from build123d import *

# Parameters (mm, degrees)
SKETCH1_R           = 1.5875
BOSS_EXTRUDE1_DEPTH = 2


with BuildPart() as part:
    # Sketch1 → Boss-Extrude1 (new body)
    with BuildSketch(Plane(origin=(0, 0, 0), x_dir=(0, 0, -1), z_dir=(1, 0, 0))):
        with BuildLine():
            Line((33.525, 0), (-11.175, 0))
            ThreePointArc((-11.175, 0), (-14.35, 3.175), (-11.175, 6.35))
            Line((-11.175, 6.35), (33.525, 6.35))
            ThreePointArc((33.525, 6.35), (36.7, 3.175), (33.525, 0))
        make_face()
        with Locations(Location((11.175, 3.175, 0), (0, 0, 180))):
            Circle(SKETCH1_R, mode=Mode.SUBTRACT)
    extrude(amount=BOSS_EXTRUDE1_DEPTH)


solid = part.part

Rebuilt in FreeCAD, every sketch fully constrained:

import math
import FreeCAD as App
import Part
import Sketcher

V = App.Vector
Q = App.Units.Quantity

doc = App.newDocument("Part")
body = doc.addObject("PartDesign::Body", "Body")

sketch1 = body.newObject("Sketcher::SketchObject", "Sketch")
sketch1.AttachmentSupport = (doc.getObject("YZ_Plane"), [""])
sketch1.MapMode = "FlatFace"
sketch1.addGeometry([
    Part.LineSegment(V(0, 11.2, 0), V(0, -33.5, 0)),
    Part.ArcOfCircle(Part.Circle(V(3.2, -33.5, 0), V(0, 0, 1), 3.2), math.radians(180), math.radians(360)),
    Part.LineSegment(V(6.3, -33.5, 0), V(6.3, 11.2, 0)),
    Part.ArcOfCircle(Part.Circle(V(3.2, 11.2, 0), V(0, 0, 1), 3.2), math.radians(0), math.radians(180)),
    Part.Circle(V(3.2, -11.2, 0), V(0, 0, 1), 1.6),
], False)
sketch1.addConstraint([
    Sketcher.Constraint("Tangent", 0, 2, 1, 1),
    Sketcher.Constraint("Tangent", 1, 2, 2, 1),
    Sketcher.Constraint("Tangent", 2, 2, 3, 1),
    Sketcher.Constraint("Tangent", 3, 2, 0, 1),
    Sketcher.Constraint("Vertical", 0),
    Sketcher.Constraint("Vertical", 2),
    Sketcher.Constraint("Symmetric", 3, 3, 4, 3, -1),
    Sketcher.Constraint("PointOnObject", 0, 2, -2),
    Sketcher.Constraint("Diameter", 4, Q("3.175 mm")),
    Sketcher.Constraint("DistanceY", 0, 2, 0, 1, Q("44.7 mm")),
    Sketcher.Constraint("Radius", 1, Q("3.175 mm")),
    Sketcher.Constraint("DistanceY", 1, 3, 4, 3, Q("22.35 mm")),
])
pad1 = body.newObject("PartDesign::Pad", "Pad")
pad1.Profile = sketch1
pad1.Length = 2

doc.recompute()
